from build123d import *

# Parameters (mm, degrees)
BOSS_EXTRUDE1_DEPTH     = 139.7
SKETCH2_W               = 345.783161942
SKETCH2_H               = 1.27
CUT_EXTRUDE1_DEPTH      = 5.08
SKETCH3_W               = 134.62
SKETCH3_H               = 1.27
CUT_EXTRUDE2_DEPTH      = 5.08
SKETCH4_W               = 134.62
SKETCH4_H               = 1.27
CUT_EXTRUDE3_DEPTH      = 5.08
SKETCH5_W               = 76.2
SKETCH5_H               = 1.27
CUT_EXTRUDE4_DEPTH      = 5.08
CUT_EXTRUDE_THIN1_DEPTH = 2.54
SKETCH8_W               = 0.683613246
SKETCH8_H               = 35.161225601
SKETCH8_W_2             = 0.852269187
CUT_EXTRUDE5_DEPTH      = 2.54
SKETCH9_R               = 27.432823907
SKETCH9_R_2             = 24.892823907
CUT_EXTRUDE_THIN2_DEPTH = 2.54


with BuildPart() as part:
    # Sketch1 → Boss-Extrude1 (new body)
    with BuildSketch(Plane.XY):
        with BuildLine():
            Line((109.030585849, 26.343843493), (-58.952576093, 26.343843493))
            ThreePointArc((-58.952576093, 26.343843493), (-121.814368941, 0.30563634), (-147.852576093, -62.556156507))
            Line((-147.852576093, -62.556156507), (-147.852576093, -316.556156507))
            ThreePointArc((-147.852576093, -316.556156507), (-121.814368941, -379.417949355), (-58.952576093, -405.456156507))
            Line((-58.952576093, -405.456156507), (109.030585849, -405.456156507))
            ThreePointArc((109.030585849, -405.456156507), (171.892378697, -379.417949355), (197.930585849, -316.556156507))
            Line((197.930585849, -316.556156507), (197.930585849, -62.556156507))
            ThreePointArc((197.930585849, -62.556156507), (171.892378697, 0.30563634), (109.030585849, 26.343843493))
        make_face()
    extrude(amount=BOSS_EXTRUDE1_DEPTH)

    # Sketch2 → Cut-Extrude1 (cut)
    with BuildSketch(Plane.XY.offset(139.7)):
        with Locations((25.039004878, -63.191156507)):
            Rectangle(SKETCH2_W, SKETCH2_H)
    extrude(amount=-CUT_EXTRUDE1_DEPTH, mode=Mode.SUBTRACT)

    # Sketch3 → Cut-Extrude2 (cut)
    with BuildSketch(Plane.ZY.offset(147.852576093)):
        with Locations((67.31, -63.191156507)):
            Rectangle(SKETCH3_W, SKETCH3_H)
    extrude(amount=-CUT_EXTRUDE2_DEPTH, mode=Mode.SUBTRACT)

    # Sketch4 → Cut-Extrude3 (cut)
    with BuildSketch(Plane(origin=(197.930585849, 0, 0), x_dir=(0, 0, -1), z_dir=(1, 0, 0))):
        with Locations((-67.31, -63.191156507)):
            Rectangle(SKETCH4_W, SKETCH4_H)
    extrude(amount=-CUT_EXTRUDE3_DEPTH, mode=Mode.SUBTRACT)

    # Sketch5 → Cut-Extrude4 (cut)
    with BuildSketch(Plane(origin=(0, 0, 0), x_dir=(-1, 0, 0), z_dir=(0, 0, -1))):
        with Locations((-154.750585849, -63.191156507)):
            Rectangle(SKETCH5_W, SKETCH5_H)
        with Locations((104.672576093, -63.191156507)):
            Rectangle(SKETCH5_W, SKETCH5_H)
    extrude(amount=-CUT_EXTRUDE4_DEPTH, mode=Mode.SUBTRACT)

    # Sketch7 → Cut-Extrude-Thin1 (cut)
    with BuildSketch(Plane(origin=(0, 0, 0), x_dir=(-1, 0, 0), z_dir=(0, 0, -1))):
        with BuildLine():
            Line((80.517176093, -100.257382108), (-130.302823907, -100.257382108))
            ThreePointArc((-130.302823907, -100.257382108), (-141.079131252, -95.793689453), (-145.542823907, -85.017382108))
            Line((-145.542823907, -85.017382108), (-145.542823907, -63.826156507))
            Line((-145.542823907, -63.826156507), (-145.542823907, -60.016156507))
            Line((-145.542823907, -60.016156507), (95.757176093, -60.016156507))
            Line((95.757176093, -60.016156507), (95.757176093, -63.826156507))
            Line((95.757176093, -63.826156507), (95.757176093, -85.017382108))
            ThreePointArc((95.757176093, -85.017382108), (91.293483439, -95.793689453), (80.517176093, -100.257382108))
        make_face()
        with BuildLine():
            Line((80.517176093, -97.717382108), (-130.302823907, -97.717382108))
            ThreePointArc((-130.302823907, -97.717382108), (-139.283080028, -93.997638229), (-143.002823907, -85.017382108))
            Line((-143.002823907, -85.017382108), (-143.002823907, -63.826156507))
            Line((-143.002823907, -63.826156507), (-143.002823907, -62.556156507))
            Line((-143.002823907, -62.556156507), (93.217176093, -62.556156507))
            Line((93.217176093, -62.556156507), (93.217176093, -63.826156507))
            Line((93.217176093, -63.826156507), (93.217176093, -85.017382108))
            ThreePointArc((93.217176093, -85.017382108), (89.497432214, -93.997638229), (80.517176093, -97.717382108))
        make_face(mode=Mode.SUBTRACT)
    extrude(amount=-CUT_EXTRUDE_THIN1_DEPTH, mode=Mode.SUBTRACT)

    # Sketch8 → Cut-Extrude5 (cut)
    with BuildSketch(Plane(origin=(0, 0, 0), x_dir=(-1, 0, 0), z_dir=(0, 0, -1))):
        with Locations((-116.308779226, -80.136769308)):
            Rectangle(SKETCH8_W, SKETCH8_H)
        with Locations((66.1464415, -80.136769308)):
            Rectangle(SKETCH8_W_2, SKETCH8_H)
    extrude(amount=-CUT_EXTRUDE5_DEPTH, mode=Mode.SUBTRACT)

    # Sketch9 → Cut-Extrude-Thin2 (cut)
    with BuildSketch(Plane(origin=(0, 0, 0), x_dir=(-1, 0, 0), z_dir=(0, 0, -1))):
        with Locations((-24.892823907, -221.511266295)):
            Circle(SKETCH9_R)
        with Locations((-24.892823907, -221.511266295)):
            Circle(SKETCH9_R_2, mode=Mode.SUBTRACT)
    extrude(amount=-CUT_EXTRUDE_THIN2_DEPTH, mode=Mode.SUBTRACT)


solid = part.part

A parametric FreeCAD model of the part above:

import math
import FreeCAD as App
import Part
import Sketcher
from FreeCAD import Vector
Q = App.Units.Quantity

doc = App.newDocument("Part")
body = doc.addObject("PartDesign::Body", "Body")

# Sketch on XY plane
sketch1 = body.newObject("Sketcher::SketchObject", "Sketch")
sketch1.AttachmentSupport = (doc.getObject("XY_Plane"), [""])
sketch1.MapMode = "FlatFace"
sketch1.addGeometry([
    Part.LineSegment(Vector(109, 26, 0), Vector(-59, 26, 0)),  # 0
    Part.ArcOfCircle(Part.Circle(Vector(-59, -63, 0), Vector(0, 0, 1), 89), math.radians(90), math.radians(180)),  # 1
    Part.LineSegment(Vector(-148, -63, 0), Vector(-148, -317, 0)),  # 2
    Part.ArcOfCircle(Part.Circle(Vector(-59, -317, 0), Vector(0, 0, 1), 89), math.radians(180), math.radians(270)),  # 3
    Part.LineSegment(Vector(-59, -405, 0), Vector(109, -405, 0)),  # 4
    Part.ArcOfCircle(Part.Circle(Vector(109, -317, 0), Vector(0, 0, 1), 89), math.radians(-90), math.radians(0)),  # 5
    Part.LineSegment(Vector(198, -317, 0), Vector(198, -63, 0)),  # 6
    Part.ArcOfCircle(Part.Circle(Vector(109, -63, 0), Vector(0, 0, 1), 89), math.radians(0), math.radians(90)),  # 7
], False)
sketch1.addConstraint([
    Sketcher.Constraint("Tangent", 0, 2, 1, 1),
    Sketcher.Constraint("Tangent", 1, 2, 2, 1),
    Sketcher.Constraint("Tangent", 2, 2, 3, 1),
    Sketcher.Constraint("Tangent", 3, 2, 4, 1),
    Sketcher.Constraint("Tangent", 4, 2, 5, 1),
    Sketcher.Constraint("Tangent", 5, 2, 6, 1),
    Sketcher.Constraint("Tangent", 6, 2, 7, 1),
    Sketcher.Constraint("Tangent", 7, 2, 0, 1),
    Sketcher.Constraint("Horizontal", 0),
    Sketcher.Constraint("Vertical", 2),
    Sketcher.Constraint("Horizontal", 4),
    Sketcher.Constraint("Vertical", 6),
    Sketcher.Constraint("Equal", 1, 3),
    Sketcher.Constraint("Equal", 3, 5),
    Sketcher.Constraint("Equal", 5, 7),
    Sketcher.Constraint("Radius", 1, Q("3.5 in")),
    Sketcher.Constraint("DistanceY", 2, 2, 2, 1, Q("10 in")),
    Sketcher.Constraint("DistanceX", 0, 2, 0, 1, 167.983162),
    Sketcher.Constraint("DistanceX", 1, 3, -1, 1, 58.952576),
    Sketcher.Constraint("DistanceY", 1, 3, -1, 1, 62.556157),
])
pad1 = body.newObject("PartDesign::Pad", "Pad")
pad1.Profile = sketch1
pad1.Length = Q("5.5 in")

# Sketch on XY plane
sketch2 = body.newObject("Sketcher::SketchObject", "Sketch001")
sketch2.AttachmentSupport = (doc.getObject("XY_Plane"), [""])
sketch2.MapMode = "FlatFace"
sketch2.AttachmentOffset = App.Placement(Vector(0, 0, 5.5 * 25.4), App.Rotation())
sketch2.addGeometry([
    Part.LineSegment(Vector(-147.9, -62.6, 0), Vector(-147.9, -63.8, 0)),
    Part.LineSegment(Vector(-147.9, -63.8, 0), Vector(197.9, -63.8, 0)),
    Part.LineSegment(Vector(197.9, -63.8, 0), Vector(197.9, -62.6, 0)),
    Part.LineSegment(Vector(197.9, -62.6, 0), Vector(-147.9, -62.6, 0)),
], False)
sketch2.addConstraint([
    Sketcher.Constraint("Coincident", 0, 2, 1, 1),
    Sketcher.Constraint("Coincident", 1, 2, 2, 1),
    Sketcher.Constraint("Coincident", 2, 2, 3, 1),
    Sketcher.Constraint("Coincident", 3, 2, 0, 1),
    Sketcher.Constraint("Vertical", 0),
    Sketcher.Constraint("Horizontal", 1),
    Sketcher.Constraint("Vertical", 2),
    Sketcher.Constraint("Horizontal", 3),
    Sketcher.Constraint("DistanceY", 0, 2, 0, 1, Q("0.05 in")),
    Sketcher.Constraint("DistanceX", 1, 1, 1, 2, 345.783162),
    Sketcher.Constraint("DistanceX", 0, 2, -1, 1, 147.852576),
    Sketcher.Constraint("DistanceY", 0, 2, -1, 1, 63.826157),
])
pocket1 = body.newObject("PartDesign::Pocket", "Pocket")
pocket1.Profile = sketch2
pocket1.Length = Q("0.2 in")

# Sketch on YZ plane
sketch3 = body.newObject("Sketcher::SketchObject", "Sketch002")
sketch3.AttachmentSupport = (doc.getObject("YZ_Plane"), [""])
sketch3.MapMode = "FlatFace"
sketch3.AttachmentOffset = App.Placement(Vector(0, 0, -147.852576), App.Rotation())
sketch3.addGeometry([
    Part.LineSegment(Vector(-62.6, 0, 0), Vector(-63.8, 0, 0)),
    Part.LineSegment(Vector(-63.8, 0, 0), Vector(-63.8, 134.6, 0)),
    Part.LineSegment(Vector(-63.8, 134.6, 0), Vector(-62.6, 134.6, 0)),
    Part.LineSegment(Vector(-62.6, 134.6, 0), Vector(-62.6, 0, 0)),
], False)
sketch3.addConstraint([
    Sketcher.Constraint("Coincident", 0, 2, 1, 1),
    Sketcher.Constraint("Coincident", 1, 2, 2, 1),
    Sketcher.Constraint("Coincident", 2, 2, 3, 1),
    Sketcher.Constraint("Coincident", 3, 2, 0, 1),
    Sketcher.Constraint("Horizontal", 0),
    Sketcher.Constraint("Vertical", 1),
    Sketcher.Constraint("Horizontal", 2),
    Sketcher.Constraint("Vertical", 3),
    Sketcher.Constraint("PointOnObject", 0, 2, -1),
    Sketcher.Constraint("DistanceY", 1, 1, 1, 2, Q("5.3 in")),
    Sketcher.Constraint("DistanceX", 0, 2, 0, 1, Q("0.05 in")),
    Sketcher.Constraint("DistanceX", 0, 2, -1, 1, 63.826157),
])
pocket2 = body.newObject("PartDesign::Pocket", "Pocket001")
pocket2.Profile = sketch3
pocket2.Length = Q("0.2 in")
pocket2.Reversed = True

# Sketch on YZ plane
sketch4 = body.newObject("Sketcher::SketchObject", "Sketch003")
sketch4.AttachmentSupport = (doc.getObject("YZ_Plane"), [""])
sketch4.MapMode = "FlatFace"
sketch4.AttachmentOffset = App.Placement(Vector(0, 0, 197.930586), App.Rotation())
sketch4.addGeometry([
    Part.LineSegment(Vector(-62.6, 134.6, 0), Vector(-63.8, 134.6, 0)),
    Part.LineSegment(Vector(-63.8, 134.6, 0), Vector(-63.8, 0, 0)),
    Part.LineSegment(Vector(-63.8, 0, 0), Vector(-62.6, 0, 0)),
    Part.LineSegment(Vector(-62.6, 0, 0), Vector(-62.6, 134.6, 0)),
], False)
sketch4.addConstraint([
    Sketcher.Constraint("Coincident", 0, 2, 1, 1),
    Sketcher.Constraint("Coincident", 1, 2, 2, 1),
    Sketcher.Constraint("Coincident", 2, 2, 3, 1),
    Sketcher.Constraint("Coincident", 3, 2, 0, 1),
    Sketcher.Constraint("Horizontal", 0),
    Sketcher.Constraint("Vertical", 1),
    Sketcher.Constraint("Horizontal", 2),
    Sketcher.Constraint("Vertical", 3),
    Sketcher.Constraint("PointOnObject", 1, 2, -1),
    Sketcher.Constraint("DistanceY", 1, 2, 1, 1, Q("5.3 in")),
    Sketcher.Constraint("DistanceX", 0, 2, 0, 1, Q("0.05 in")),
    Sketcher.Constraint("DistanceX", 0, 2, -1, 1, 63.826157),
])
pocket3 = body.newObject("PartDesign::Pocket", "Pocket002")
pocket3.Profile = sketch4
pocket3.Length = Q("0.2 in")

# Sketch on XY plane
sketch5 = body.newObject("Sketcher::SketchObject", "Sketch004")
sketch5.AttachmentSupport = (doc.getObject("XY_Plane"), [""])
sketch5.MapMode = "FlatFace"
sketch5.addGeometry([
    Part.LineSegment(Vector(192.9, -62.6, 0), Vector(192.9, -63.8, 0)),  # 0
    Part.LineSegment(Vector(192.9, -63.8, 0), Vector(116.7, -63.8, 0)),  # 1
    Part.LineSegment(Vector(116.7, -63.8, 0), Vector(116.7, -62.6, 0)),  # 2
    Part.LineSegment(Vector(116.7, -62.6, 0), Vector(192.9, -62.6, 0)),  # 3
    Part.LineSegment(Vector(-66.6, -62.6, 0), Vector(-66.6, -63.8, 0)),  # 4
    Part.LineSegment(Vector(-66.6, -63.8, 0), Vector(-142.8, -63.8, 0)),  # 5
    Part.LineSegment(Vector(-142.8, -63.8, 0), Vector(-142.8, -62.6, 0)),  # 6
    Part.LineSegment(Vector(-142.8, -62.6, 0), Vector(-66.6, -62.6, 0)),  # 7
], False)
sketch5.addConstraint([
    Sketcher.Constraint("Coincident", 0, 2, 1, 1),
    Sketcher.Constraint("Coincident", 1, 2, 2, 1),
    Sketcher.Constraint("Coincident", 2, 2, 3, 1),
    Sketcher.Constraint("Coincident", 3, 2, 0, 1),
    Sketcher.Constraint("Coincident", 4, 2, 5, 1),
    Sketcher.Constraint("Coincident", 5, 2, 6, 1),
    Sketcher.Constraint("Coincident", 6, 2, 7, 1),
    Sketcher.Constraint("Coincident", 7, 2, 4, 1),
    Sketcher.Constraint("Vertical", 0),
    Sketcher.Constraint("Horizontal", 1),
    Sketcher.Constraint("Vertical", 2),
    Sketcher.Constraint("Horizontal", 3),
    Sketcher.Constraint("Vertical", 4),
    Sketcher.Constraint("Horizontal", 5),
    Sketcher.Constraint("Vertical", 6),
    Sketcher.Constraint("Horizontal", 7),
    Sketcher.Constraint("Horizontal", 1, 2, 4, 2),
    Sketcher.Constraint("Horizontal", 3, 2, 6, 2),
    Sketcher.Constraint("Equal", 3, 5),
    Sketcher.Constraint("DistanceX", 1, 2, 1, 1, Q("3 in")),
    Sketcher.Constraint("DistanceY", 0, 2, 0, 1, Q("0.05 in")),
    Sketcher.Constraint("DistanceX", 4, 2, 1, 2, 183.223162),
    Sketcher.Constraint("DistanceX", -1, 1, 0, 2, 192.850586),
    Sketcher.Constraint("DistanceY", 0, 2, -1, 1, 63.826157),
])
pocket4 = body.newObject("PartDesign::Pocket", "Pocket003")
pocket4.Profile = sketch5
pocket4.Length = Q("0.2 in")
pocket4.Reversed = True

# Sketch on XY plane
sketch6 = body.newObject("Sketcher::SketchObject", "Sketch005")
sketch6.AttachmentSupport = (doc.getObject("XY_Plane"), [""])
sketch6.MapMode = "FlatFace"
sketch6.addGeometry([
    Part.LineSegment(Vector(130, -100, 0), Vector(-81, -100, 0)),  # 0
    Part.ArcOfCircle(Part.Circle(Vector(-81, -85, 0), Vector(0, 0, 1), 15), math.radians(180), math.radians(270)),  # 1
    Part.LineSegment(Vector(-96, -85, 0), Vector(-96, -60, 0)),  # 2
    Part.LineSegment(Vector(-96, -60, 0), Vector(146, -60, 0)),  # 3
    Part.LineSegment(Vector(146, -60, 0), Vector(146, -85, 0)),  # 4
    Part.ArcOfCircle(Part.Circle(Vector(130, -85, 0), Vector(0, 0, 1), 15), math.radians(-90), math.radians(0)),  # 5
    Part.LineSegment(Vector(-81, -98, 0), Vector(130, -98, 0)),  # 6
    Part.ArcOfCircle(Part.Circle(Vector(130, -85, 0), Vector(0, 0, 1), 13), math.radians(-90), math.radians(0)),  # 7
    Part.LineSegment(Vector(143, -85, 0), Vector(143, -63, 0)),  # 8
    Part.LineSegment(Vector(143, -63, 0), Vector(-93, -63, 0)),  # 9
    Part.LineSegment(Vector(-93, -63, 0), Vector(-93, -85, 0)),  # 10
    Part.ArcOfCircle(Part.Circle(Vector(-81, -85, 0), Vector(0, 0, 1), 13), math.radians(180), math.radians(270)),  # 11
], False)
sketch6.addConstraint([
    Sketcher.Constraint("Tangent", 0, 2, 1, 2),
    Sketcher.Constraint("Tangent", 1, 1, 2, 1),
    Sketcher.Constraint("Coincident", 2, 2, 3, 1),
    Sketcher.Constraint("Coincident", 3, 2, 4, 1),
    Sketcher.Constraint("Tangent", 4, 2, 5, 2),
    Sketcher.Constraint("Tangent", 5, 1, 0, 1),
    Sketcher.Constraint("Tangent", 6, 2, 7, 1),
    Sketcher.Constraint("Tangent", 7, 2, 8, 1),
    Sketcher.Constraint("Coincident", 8, 2, 9, 1),
    Sketcher.Constraint("Coincident", 9, 2, 10, 1),
    Sketcher.Constraint("Tangent", 10, 2, 11, 1),
    Sketcher.Constraint("Tangent", 11, 2, 6, 1),
    Sketcher.Constraint("Horizontal", 0),
    Sketcher.Constraint("Vertical", 2),
    Sketcher.Constraint("Horizontal", 3),
    Sketcher.Constraint("Vertical", 4),
    Sketcher.Constraint("Horizontal", 6),
    Sketcher.Constraint("Vertical", 8),
    Sketcher.Constraint("Horizontal", 9),
    Sketcher.Constraint("Vertical", 10),
    Sketcher.Constraint("Coincident", 7, 3, 5, 3),
    Sketcher.Constraint("Coincident", 11, 3, 1, 3),
    Sketcher.Constraint("Equal", 1, 5),
    Sketcher.Constraint("Radius", 1, Q("0.6 in")),
    Sketcher.Constraint("Radius", 7, Q("0.5 in")),
    Sketcher.Constraint("DistanceX", 0, 2, 0, 1, Q("8.3 in")),
    Sketcher.Constraint("DistanceY", 8, 2, 3, 2, Q("0.1 in")),
    Sketcher.Constraint("DistanceY", 2, 1, 2, 2, 25.001226),
    Sketcher.Constraint("DistanceX", 1, 3, -1, 1, 80.517176),
    Sketcher.Constraint("DistanceY", 1, 3, -1, 1, 85.017382),
])
pocket5 = body.newObject("PartDesign::Pocket", "Pocket004")
pocket5.Profile = sketch6
pocket5.Length = Q("0.1 in")
pocket5.Reversed = True

# Sketch on XY plane
sketch7 = body.newObject("Sketcher::SketchObject", "Sketch006")
sketch7.AttachmentSupport = (doc.getObject("XY_Plane"), [""])
sketch7.MapMode = "FlatFace"
sketch7.addGeometry([
    Part.LineSegment(Vector(116.7, -62.6, 0), Vector(116.7, -97.7, 0)),  # 0
    Part.LineSegment(Vector(116.7, -97.7, 0), Vector(116, -97.7, 0)),  # 1
    Part.LineSegment(Vector(116, -97.7, 0), Vector(116, -62.6, 0)),  # 2
    Part.LineSegment(Vector(116, -62.6, 0), Vector(116.7, -62.6, 0)),  # 3
    Part.LineSegment(Vector(-65.7, -62.6, 0), Vector(-65.7, -97.7, 0)),  # 4
    Part.LineSegment(Vector(-65.7, -97.7, 0), Vector(-66.6, -97.7, 0)),  # 5
    Part.LineSegment(Vector(-66.6, -97.7, 0), Vector(-66.6, -62.6, 0)),  # 6
    Part.LineSegment(Vector(-66.6, -62.6, 0), Vector(-65.7, -62.6, 0)),  # 7
], False)
sketch7.addConstraint([
    Sketcher.Constraint("Coincident", 0, 2, 1, 1),
    Sketcher.Constraint("Coincident", 1, 2, 2, 1),
    Sketcher.Constraint("Coincident", 2, 2, 3, 1),
    Sketcher.Constraint("Coincident", 3, 2, 0, 1),
    Sketcher.Constraint("Coincident", 4, 2, 5, 1),
    Sketcher.Constraint("Coincident", 5, 2, 6, 1),
    Sketcher.Constraint("Coincident", 6, 2, 7, 1),
    Sketcher.Constraint("Coincident", 7, 2, 4, 1),
    Sketcher.Constraint("Vertical", 0),
    Sketcher.Constraint("Horizontal", 1),
    Sketcher.Constraint("Vertical", 2),
    Sketcher.Constraint("Horizontal", 3),
    Sketcher.Constraint("Vertical", 4),
    Sketcher.Constraint("Horizontal", 5),
    Sketcher.Constraint("Vertical", 6),
    Sketcher.Constraint("Horizontal", 7),
    Sketcher.Constraint("Horizontal", 1, 2, 4, 2),
    Sketcher.Constraint("Horizontal", 3, 2, 6, 2),
    Sketcher.Constraint("DistanceX", 5, 2, 5, 1, 0.852269),
    Sketcher.Constraint("DistanceX", 1, 2, 1, 1, 0.683613),
    Sketcher.Constraint("DistanceY", 0, 2, 0, 1, 35.161226),
    Sketcher.Constraint("DistanceX", 4, 2, 1, 2, 181.68728),
    Sketcher.Constraint("DistanceX", -1, 1, 0, 2, 116.650586),
    Sketcher.Constraint("DistanceY", 0, 2, -1, 1, 97.717382),
])
pocket6 = body.newObject("PartDesign::Pocket", "Pocket005")
pocket6.Profile = sketch7
pocket6.Length = Q("0.1 in")
pocket6.Reversed = True

# Sketch on XY plane
sketch8 = body.newObject("Sketcher::SketchObject", "Sketch007")
sketch8.AttachmentSupport = (doc.getObject("XY_Plane"), [""])
sketch8.MapMode = "FlatFace"
sketch8.addGeometry([
    Part.Circle(Vector(25, -222, 0), Vector(0, 0, 1), 27),
    Part.Circle(Vector(25, -222, 0), Vector(0, 0, 1), 25),
], False)
sketch8.addConstraint([
    Sketcher.Constraint("Coincident", 1, 3, 0, 3),
    Sketcher.Constraint("Diameter", 0, 54.865648),
    Sketcher.Constraint("Diameter", 1, 49.785648),
    Sketcher.Constraint("DistanceX", -1, 1, 0, 3, 24.892824),
    Sketcher.Constraint("DistanceY", 0, 3, -1, 1, 221.511266),
])
pocket7 = body.newObject("PartDesign::Pocket", "Pocket006")
pocket7.Profile = sketch8
pocket7.Length = Q("0.1 in")
pocket7.Reversed = True

doc.recompute()
